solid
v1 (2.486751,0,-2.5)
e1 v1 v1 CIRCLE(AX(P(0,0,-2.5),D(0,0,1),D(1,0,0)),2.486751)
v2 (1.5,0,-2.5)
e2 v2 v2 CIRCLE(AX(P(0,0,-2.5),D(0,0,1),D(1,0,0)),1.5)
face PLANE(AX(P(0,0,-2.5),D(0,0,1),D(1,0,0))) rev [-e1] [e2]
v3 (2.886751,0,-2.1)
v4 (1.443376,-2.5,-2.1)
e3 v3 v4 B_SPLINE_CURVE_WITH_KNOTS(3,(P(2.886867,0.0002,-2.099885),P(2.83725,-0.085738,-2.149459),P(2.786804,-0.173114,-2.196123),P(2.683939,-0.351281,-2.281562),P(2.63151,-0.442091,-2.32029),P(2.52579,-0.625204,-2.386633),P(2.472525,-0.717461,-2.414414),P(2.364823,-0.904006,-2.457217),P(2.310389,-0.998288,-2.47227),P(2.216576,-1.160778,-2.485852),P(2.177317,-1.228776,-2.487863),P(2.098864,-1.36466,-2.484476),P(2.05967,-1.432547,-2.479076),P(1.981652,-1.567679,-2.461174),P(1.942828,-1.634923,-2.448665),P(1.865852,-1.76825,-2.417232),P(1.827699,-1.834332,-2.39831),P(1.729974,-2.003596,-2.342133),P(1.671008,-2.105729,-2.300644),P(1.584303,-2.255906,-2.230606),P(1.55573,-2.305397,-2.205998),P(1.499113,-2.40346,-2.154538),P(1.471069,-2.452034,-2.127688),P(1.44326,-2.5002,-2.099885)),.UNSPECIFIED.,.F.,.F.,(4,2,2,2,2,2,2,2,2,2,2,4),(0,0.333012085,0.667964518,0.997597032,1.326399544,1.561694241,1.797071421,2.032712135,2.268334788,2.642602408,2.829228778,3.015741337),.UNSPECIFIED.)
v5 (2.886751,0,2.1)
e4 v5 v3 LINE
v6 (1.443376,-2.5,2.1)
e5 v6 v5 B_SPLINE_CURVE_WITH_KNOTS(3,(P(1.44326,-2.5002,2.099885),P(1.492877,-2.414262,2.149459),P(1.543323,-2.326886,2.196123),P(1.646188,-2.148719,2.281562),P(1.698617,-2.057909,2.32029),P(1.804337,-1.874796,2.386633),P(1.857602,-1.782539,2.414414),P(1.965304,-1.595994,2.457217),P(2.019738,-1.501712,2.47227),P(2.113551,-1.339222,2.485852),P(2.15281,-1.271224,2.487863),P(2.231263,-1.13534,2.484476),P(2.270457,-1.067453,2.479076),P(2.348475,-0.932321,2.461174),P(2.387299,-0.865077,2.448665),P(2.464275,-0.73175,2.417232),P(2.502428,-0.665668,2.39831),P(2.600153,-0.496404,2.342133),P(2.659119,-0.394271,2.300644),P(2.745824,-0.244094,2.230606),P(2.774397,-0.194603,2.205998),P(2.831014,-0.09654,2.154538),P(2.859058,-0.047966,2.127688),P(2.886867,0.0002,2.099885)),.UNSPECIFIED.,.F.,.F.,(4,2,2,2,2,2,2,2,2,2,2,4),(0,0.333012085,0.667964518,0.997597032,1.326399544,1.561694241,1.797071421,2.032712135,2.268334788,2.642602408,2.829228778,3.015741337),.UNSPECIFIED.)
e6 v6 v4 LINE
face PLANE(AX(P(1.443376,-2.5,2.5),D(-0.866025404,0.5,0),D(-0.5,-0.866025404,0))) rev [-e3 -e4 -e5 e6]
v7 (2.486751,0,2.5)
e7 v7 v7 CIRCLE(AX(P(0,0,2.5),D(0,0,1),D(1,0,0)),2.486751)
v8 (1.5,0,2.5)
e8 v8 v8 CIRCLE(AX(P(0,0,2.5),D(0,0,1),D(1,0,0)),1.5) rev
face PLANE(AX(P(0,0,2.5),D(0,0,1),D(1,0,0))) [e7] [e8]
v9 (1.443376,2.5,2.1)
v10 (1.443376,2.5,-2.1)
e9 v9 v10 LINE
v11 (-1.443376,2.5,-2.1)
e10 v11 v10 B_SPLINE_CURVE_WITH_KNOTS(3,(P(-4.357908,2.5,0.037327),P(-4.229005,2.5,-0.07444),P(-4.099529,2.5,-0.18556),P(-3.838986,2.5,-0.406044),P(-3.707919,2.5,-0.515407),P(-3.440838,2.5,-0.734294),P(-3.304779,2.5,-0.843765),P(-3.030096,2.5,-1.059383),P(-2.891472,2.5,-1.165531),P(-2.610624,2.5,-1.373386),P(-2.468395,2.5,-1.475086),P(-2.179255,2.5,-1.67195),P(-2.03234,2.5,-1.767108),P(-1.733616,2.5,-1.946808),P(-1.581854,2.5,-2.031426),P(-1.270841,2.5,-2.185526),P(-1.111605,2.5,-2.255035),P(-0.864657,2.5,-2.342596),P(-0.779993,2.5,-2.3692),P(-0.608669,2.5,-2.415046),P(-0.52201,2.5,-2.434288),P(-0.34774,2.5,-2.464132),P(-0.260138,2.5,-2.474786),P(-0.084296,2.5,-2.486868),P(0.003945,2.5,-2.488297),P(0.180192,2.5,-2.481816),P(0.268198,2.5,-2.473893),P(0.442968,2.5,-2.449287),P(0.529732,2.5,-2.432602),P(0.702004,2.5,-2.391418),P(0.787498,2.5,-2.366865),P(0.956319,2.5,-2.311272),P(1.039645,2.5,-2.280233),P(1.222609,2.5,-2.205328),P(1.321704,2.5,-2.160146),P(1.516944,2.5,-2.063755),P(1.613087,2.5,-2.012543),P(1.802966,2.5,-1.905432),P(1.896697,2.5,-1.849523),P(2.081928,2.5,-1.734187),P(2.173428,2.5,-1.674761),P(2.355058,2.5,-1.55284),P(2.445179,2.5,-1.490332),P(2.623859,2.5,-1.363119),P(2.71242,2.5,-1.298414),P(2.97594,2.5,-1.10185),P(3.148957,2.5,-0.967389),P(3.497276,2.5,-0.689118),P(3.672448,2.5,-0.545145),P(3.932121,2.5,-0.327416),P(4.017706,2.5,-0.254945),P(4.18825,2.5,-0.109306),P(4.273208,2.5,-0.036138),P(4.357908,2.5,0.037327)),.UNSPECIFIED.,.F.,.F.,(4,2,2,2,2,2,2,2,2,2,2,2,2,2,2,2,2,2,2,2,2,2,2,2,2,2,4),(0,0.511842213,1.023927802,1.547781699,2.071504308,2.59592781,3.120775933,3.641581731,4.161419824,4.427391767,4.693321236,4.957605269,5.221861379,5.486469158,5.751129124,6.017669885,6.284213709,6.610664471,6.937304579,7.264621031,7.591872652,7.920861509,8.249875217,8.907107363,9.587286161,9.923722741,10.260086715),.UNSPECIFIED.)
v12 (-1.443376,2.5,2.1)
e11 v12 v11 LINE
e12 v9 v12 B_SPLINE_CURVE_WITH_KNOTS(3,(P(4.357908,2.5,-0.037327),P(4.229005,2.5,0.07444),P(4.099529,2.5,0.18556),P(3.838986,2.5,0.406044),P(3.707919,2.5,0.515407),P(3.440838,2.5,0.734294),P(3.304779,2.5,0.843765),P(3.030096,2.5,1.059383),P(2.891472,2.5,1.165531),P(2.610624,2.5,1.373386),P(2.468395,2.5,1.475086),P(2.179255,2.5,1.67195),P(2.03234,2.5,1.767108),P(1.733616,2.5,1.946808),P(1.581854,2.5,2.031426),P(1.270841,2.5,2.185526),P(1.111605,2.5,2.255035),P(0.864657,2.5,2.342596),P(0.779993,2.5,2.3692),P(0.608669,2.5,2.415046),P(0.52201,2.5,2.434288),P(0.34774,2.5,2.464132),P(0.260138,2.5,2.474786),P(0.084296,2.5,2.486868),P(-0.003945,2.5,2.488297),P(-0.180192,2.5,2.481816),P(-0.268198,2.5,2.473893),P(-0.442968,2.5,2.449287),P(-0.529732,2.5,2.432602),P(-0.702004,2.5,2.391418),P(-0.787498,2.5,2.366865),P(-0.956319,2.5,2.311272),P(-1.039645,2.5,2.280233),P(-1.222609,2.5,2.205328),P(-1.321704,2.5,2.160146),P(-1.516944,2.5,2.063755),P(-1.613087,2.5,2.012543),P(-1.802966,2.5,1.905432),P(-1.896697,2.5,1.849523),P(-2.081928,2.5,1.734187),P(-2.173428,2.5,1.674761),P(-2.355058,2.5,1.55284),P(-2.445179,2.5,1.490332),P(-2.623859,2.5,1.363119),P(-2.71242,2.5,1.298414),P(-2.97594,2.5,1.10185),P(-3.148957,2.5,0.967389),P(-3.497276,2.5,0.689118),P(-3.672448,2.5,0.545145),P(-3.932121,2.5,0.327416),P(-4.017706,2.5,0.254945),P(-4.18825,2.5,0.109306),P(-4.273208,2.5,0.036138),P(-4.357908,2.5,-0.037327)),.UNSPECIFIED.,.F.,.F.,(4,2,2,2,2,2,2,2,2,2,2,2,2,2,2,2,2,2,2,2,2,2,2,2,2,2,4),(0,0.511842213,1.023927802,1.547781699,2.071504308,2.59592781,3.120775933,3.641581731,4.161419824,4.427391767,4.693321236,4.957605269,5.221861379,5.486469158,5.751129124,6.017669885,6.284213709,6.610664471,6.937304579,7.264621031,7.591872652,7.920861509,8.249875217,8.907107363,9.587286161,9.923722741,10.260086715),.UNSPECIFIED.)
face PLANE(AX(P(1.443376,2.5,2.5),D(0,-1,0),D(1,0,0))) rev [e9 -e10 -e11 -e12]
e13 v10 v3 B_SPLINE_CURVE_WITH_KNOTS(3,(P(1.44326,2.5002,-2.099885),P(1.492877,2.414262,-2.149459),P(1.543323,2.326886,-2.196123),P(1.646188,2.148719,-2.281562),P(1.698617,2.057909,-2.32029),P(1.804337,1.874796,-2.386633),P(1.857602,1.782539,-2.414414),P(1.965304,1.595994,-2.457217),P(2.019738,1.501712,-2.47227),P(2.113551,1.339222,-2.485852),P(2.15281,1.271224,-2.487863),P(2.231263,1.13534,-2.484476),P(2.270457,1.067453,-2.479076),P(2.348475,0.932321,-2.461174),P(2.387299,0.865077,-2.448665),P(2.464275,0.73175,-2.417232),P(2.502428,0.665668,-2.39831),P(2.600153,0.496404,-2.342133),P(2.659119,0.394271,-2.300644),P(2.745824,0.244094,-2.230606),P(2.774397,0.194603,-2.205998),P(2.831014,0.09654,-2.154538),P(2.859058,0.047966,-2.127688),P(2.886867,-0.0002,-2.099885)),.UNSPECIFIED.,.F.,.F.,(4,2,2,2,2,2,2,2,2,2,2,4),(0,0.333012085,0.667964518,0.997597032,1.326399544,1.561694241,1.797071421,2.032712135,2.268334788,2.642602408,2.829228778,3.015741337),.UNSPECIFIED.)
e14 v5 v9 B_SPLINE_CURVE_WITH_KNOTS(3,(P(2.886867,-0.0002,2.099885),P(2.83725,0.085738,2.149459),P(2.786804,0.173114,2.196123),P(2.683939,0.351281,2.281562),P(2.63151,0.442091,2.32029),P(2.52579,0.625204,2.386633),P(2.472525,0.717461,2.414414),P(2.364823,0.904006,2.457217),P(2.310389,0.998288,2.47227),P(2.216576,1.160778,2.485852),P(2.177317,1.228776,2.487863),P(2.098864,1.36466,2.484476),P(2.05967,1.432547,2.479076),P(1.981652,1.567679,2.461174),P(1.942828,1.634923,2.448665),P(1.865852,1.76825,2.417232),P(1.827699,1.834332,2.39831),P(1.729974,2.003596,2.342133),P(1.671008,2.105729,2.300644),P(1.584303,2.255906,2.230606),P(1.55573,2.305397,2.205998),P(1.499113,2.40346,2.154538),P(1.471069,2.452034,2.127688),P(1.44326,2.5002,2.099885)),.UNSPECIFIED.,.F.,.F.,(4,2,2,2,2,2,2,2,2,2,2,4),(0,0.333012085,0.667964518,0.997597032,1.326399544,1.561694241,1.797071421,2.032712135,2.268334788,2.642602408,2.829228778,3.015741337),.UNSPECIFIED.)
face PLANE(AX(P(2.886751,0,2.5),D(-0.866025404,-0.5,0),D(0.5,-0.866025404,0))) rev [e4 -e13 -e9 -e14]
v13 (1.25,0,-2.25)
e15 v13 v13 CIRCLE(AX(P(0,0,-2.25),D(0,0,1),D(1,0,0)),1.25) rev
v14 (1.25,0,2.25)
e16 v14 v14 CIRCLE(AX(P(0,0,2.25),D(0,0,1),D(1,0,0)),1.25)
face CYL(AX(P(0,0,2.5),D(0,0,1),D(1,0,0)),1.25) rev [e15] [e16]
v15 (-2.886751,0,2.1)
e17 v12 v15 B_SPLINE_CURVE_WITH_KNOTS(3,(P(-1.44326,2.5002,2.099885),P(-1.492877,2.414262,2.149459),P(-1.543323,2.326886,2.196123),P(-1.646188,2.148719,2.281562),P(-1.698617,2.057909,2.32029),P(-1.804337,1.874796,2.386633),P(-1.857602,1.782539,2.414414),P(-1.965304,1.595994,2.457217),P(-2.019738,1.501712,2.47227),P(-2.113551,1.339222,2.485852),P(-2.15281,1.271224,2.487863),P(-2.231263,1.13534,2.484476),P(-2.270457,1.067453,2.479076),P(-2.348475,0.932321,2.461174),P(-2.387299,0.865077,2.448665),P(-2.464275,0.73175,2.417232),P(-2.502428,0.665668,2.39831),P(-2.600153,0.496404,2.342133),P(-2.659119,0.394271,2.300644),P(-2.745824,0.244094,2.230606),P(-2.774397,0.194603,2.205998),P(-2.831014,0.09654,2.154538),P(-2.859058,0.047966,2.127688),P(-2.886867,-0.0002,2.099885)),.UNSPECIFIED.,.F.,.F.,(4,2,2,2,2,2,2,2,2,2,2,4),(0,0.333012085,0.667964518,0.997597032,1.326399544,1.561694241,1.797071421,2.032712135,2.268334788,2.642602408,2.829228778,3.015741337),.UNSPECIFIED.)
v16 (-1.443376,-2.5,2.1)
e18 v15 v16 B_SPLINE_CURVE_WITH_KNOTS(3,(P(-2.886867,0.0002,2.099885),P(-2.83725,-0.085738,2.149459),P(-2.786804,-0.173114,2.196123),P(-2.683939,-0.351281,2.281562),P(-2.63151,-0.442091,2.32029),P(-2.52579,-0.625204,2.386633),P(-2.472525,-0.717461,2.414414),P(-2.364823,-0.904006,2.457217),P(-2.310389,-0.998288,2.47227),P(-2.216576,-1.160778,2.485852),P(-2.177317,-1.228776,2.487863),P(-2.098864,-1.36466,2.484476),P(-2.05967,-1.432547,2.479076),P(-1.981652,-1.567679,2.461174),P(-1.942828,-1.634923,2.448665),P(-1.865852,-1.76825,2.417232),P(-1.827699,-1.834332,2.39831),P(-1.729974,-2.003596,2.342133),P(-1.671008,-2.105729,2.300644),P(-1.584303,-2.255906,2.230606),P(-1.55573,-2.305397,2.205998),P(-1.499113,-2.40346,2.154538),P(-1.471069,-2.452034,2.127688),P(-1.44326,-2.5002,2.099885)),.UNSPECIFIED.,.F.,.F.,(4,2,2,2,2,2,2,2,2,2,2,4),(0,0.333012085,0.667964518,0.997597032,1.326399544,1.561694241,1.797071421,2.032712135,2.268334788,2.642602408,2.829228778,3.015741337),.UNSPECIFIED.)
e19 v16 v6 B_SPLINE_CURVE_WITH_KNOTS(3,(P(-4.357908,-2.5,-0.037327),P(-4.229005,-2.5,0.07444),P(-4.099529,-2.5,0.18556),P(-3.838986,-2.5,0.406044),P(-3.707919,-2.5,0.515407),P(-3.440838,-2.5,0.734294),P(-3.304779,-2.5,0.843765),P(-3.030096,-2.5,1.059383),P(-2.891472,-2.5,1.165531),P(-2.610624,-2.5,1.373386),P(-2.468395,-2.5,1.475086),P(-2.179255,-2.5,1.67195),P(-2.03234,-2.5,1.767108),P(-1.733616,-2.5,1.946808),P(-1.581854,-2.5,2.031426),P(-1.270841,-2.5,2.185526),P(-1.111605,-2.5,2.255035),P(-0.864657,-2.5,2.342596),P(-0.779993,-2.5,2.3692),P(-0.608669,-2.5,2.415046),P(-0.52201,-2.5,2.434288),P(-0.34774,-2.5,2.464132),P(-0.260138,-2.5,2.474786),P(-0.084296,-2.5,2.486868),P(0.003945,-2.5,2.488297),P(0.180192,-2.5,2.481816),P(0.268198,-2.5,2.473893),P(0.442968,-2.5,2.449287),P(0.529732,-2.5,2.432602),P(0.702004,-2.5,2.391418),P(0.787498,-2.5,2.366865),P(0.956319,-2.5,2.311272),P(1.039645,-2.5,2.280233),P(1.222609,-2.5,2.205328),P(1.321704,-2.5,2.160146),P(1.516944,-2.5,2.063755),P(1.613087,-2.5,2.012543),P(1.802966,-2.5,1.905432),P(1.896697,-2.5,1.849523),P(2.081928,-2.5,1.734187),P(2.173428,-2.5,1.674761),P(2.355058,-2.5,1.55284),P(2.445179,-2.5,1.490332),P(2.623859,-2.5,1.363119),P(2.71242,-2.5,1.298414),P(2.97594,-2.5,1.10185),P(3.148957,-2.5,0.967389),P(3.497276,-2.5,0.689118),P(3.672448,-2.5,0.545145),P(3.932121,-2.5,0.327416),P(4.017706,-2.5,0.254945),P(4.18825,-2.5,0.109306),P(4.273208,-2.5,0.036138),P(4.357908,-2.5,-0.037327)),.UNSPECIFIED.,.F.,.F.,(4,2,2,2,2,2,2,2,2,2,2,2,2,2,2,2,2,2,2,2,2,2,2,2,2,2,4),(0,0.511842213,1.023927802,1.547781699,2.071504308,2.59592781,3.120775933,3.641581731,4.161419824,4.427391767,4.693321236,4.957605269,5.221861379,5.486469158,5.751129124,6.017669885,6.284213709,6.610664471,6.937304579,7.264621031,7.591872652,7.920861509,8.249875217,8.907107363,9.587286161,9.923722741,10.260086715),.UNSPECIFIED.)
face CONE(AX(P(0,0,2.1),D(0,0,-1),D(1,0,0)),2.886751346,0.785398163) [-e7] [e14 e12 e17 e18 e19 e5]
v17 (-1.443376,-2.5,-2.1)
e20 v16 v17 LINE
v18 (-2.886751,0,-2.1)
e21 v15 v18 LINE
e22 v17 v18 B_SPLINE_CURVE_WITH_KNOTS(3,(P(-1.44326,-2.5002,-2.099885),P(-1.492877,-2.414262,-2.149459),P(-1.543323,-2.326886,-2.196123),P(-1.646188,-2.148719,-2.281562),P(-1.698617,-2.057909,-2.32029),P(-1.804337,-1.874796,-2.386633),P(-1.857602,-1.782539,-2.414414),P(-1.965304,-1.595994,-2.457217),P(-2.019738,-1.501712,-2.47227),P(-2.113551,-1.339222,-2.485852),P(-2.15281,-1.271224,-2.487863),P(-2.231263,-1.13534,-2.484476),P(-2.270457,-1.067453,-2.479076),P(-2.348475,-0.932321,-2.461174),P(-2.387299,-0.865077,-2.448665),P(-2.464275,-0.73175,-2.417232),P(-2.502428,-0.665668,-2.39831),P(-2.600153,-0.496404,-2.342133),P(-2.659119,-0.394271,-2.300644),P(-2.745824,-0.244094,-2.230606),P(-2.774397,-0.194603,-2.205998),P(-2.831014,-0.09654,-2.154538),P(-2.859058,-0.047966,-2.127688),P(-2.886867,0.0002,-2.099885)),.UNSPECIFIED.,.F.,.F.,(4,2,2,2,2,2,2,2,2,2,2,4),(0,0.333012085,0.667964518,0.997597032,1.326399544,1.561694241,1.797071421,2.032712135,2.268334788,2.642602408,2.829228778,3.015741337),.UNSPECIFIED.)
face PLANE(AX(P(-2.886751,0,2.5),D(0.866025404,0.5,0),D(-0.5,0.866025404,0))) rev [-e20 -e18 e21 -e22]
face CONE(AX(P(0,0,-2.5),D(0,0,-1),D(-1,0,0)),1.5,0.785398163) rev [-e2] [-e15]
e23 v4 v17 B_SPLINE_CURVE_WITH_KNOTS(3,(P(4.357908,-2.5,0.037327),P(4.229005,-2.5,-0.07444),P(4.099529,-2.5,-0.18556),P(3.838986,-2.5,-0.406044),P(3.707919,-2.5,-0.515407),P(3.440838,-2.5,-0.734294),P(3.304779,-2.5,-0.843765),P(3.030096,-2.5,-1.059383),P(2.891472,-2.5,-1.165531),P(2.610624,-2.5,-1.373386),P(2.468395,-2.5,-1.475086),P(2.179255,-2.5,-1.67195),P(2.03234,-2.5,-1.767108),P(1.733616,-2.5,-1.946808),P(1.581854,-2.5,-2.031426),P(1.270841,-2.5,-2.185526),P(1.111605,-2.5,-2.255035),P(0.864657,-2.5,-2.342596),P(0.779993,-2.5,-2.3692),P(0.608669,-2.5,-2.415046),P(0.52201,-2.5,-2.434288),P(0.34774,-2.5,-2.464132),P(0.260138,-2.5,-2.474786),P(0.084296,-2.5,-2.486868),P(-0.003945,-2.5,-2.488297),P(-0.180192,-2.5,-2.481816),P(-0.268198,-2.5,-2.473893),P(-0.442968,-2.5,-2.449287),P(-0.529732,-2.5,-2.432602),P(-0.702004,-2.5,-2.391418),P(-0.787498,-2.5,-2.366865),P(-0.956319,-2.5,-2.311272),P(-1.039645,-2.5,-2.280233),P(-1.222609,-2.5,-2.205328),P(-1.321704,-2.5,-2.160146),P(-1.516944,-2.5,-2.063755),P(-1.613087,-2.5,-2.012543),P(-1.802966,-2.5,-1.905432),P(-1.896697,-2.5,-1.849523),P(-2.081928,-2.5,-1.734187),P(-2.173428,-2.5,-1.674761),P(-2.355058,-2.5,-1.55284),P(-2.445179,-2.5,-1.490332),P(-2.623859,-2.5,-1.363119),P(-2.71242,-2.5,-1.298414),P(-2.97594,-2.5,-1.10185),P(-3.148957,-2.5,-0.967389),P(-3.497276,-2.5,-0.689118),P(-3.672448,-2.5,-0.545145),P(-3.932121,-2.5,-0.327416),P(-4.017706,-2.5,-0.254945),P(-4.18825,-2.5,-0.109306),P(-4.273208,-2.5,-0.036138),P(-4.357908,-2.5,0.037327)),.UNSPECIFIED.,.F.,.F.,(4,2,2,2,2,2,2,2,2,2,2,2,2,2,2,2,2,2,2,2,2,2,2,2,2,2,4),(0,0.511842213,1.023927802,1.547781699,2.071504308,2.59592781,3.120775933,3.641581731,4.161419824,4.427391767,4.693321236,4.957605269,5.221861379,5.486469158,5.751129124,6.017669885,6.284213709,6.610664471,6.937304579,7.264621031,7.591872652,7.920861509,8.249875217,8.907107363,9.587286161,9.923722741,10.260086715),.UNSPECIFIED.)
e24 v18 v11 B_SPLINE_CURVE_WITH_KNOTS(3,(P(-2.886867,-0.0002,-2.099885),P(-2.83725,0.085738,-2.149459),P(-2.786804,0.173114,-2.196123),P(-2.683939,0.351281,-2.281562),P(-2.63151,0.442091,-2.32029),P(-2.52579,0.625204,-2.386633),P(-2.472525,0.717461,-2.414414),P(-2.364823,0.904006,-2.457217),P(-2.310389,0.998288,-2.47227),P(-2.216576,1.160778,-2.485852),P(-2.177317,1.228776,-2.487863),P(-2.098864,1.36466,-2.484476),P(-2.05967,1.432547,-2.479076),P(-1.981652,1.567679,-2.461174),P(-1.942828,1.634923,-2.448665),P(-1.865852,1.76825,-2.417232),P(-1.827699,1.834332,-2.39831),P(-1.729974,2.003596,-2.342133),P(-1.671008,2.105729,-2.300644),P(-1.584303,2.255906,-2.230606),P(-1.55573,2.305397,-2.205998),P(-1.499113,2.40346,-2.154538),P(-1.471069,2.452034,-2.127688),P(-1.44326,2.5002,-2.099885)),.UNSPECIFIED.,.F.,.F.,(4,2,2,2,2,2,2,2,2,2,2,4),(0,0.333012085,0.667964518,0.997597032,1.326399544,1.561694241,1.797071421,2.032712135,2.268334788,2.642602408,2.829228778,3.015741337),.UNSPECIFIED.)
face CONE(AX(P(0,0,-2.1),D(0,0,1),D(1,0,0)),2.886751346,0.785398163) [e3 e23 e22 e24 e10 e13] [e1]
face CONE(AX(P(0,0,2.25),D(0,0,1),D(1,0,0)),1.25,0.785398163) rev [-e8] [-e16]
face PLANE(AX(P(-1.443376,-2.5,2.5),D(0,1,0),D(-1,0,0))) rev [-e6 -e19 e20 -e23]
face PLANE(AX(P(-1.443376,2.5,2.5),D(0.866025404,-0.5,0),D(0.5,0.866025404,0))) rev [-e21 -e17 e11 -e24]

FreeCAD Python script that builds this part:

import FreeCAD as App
import Part
import Sketcher
Q = App.Units.Quantity


def edges_at(feature, points):
    """Names of the edges that pass closest to the given points."""
    edges = feature.Shape.Edges
    near = lambda p: min(range(len(edges)), key=lambda i: edges[i].distToShape(Part.Vertex(*p))[0])
    return sorted({f"Edge{near(p) + 1}" for p in points})


def add_polygon(sketch, points):
    """Adds a closed chain of lines whose ends are joined by coincident constraints."""
    first, n = sketch.GeometryCount, len(points)
    for a, b in zip(points, points[1:] + points[:1]):
        sketch.addGeometry(Part.LineSegment(App.Vector(*a, 0), App.Vector(*b, 0)), False)
    for i in range(n):
        sketch.addConstraint(Sketcher.Constraint("Coincident", first + i, 2, first + (i + 1) % n, 1))

doc = App.newDocument("Part")
body = doc.addObject("PartDesign::Body", "Body")

# Sketch on XY plane
sketch1 = body.newObject("Sketcher::SketchObject", "Sketch")
sketch1.AttachmentSupport = (doc.getObject("XY_Plane"), [""])
sketch1.MapMode = "FlatFace"
add_polygon(sketch1, [(2.9, 0), (1.4, 2.5), (-1.4, 2.5), (-2.9, 0), (-1.4, -2.5), (1.4, -2.5)])  # lines 0-5
sketch1.addConstraint([
    Sketcher.Constraint("Horizontal", 1),
    Sketcher.Constraint("Horizontal", 4),
    Sketcher.Constraint("Symmetric", 0, 2, 3, 2, -1, 1),
    Sketcher.Constraint("Symmetric", 2, 2, 5, 2, -1, 1),
    Sketcher.Constraint("PointOnObject", 2, 2, -1),
    Sketcher.Constraint("Parallel", 2, 5),
    Sketcher.Constraint("Vertical", 1, 2, 3, 2),
    Sketcher.Constraint("Angle", 0, Q("120 deg")),
    Sketcher.Constraint("DistanceY", 3, 2, 1, 2, 5.0),
    Sketcher.Constraint("DistanceX", 1, 2, 1, 1, 2.886751),
])
pad1 = body.newObject("PartDesign::Pad", "Pad")
pad1.Profile = sketch1
pad1.Length = 5
pad1.Midplane = True

# Sketch on XY plane
sketch2 = body.newObject("Sketcher::SketchObject", "Sketch001")
sketch2.AttachmentSupport = (doc.getObject("XY_Plane"), [""])
sketch2.MapMode = "FlatFace"
sketch2.AttachmentOffset = App.Placement(App.Vector(0, 0, 2.5), App.Rotation())
sketch2.addGeometry(Part.Circle(App.Vector(0, 0, 0), App.Vector(0, 0, 1), 1.2), False)
sketch2.addConstraint([
    Sketcher.Constraint("Coincident", 0, 3, -1, 1),
    Sketcher.Constraint("Diameter", 0, 2.5),
])
doc.recompute()
hole = body.newObject("PartDesign::Hole", "Hole")
hole.Profile = sketch2
hole.ThreadType = "None"
hole.Diameter = 2.5
hole.DepthType = "ThroughAll"

# Sketch on XZ plane
sketch3 = body.newObject("Sketcher::SketchObject", "Sketch002")
sketch3.AttachmentSupport = (doc.getObject("XZ_Plane"), [""])
sketch3.MapMode = "FlatFace"
add_polygon(sketch3, [(-2.89, -2.5), (-2.89, -2.1), (-2.49, -2.5)])  # lines 0-2
sketch3.addConstraint([
    Sketcher.Constraint("Vertical", 0),
    Sketcher.Constraint("Horizontal", 2),
    Sketcher.Constraint("Equal", 2, 0),
    Sketcher.Constraint("DistanceX", 2, 2, 2, 1, 0.4),
    Sketcher.Constraint("DistanceY", 0, 2, -1, 1, 2.1),
    Sketcher.Constraint("DistanceX", 0, 2, -1, 1, 2.886751),
])
groove = body.newObject("PartDesign::Groove", "Groove")
groove.Profile = sketch3
groove.ReferenceAxis = (sketch3, ["V_Axis"])
groove.Angle = 360
doc.recompute()

mirrored = body.newObject("PartDesign::Mirrored", "Mirrored")
mirrored.Originals = [groove]
mirrored.MirrorPlane = (doc.getObject("XY_Plane"), [""])
body.Tip = mirrored
doc.recompute()

chamfer = body.newObject("PartDesign::Chamfer", "Chamfer")
chamfer.Base = (mirrored, edges_at(mirrored, [(1.25, 0, 2.5), (1.25, 0, -2.5)]))
chamfer.Size = 0.25

doc.recompute()
